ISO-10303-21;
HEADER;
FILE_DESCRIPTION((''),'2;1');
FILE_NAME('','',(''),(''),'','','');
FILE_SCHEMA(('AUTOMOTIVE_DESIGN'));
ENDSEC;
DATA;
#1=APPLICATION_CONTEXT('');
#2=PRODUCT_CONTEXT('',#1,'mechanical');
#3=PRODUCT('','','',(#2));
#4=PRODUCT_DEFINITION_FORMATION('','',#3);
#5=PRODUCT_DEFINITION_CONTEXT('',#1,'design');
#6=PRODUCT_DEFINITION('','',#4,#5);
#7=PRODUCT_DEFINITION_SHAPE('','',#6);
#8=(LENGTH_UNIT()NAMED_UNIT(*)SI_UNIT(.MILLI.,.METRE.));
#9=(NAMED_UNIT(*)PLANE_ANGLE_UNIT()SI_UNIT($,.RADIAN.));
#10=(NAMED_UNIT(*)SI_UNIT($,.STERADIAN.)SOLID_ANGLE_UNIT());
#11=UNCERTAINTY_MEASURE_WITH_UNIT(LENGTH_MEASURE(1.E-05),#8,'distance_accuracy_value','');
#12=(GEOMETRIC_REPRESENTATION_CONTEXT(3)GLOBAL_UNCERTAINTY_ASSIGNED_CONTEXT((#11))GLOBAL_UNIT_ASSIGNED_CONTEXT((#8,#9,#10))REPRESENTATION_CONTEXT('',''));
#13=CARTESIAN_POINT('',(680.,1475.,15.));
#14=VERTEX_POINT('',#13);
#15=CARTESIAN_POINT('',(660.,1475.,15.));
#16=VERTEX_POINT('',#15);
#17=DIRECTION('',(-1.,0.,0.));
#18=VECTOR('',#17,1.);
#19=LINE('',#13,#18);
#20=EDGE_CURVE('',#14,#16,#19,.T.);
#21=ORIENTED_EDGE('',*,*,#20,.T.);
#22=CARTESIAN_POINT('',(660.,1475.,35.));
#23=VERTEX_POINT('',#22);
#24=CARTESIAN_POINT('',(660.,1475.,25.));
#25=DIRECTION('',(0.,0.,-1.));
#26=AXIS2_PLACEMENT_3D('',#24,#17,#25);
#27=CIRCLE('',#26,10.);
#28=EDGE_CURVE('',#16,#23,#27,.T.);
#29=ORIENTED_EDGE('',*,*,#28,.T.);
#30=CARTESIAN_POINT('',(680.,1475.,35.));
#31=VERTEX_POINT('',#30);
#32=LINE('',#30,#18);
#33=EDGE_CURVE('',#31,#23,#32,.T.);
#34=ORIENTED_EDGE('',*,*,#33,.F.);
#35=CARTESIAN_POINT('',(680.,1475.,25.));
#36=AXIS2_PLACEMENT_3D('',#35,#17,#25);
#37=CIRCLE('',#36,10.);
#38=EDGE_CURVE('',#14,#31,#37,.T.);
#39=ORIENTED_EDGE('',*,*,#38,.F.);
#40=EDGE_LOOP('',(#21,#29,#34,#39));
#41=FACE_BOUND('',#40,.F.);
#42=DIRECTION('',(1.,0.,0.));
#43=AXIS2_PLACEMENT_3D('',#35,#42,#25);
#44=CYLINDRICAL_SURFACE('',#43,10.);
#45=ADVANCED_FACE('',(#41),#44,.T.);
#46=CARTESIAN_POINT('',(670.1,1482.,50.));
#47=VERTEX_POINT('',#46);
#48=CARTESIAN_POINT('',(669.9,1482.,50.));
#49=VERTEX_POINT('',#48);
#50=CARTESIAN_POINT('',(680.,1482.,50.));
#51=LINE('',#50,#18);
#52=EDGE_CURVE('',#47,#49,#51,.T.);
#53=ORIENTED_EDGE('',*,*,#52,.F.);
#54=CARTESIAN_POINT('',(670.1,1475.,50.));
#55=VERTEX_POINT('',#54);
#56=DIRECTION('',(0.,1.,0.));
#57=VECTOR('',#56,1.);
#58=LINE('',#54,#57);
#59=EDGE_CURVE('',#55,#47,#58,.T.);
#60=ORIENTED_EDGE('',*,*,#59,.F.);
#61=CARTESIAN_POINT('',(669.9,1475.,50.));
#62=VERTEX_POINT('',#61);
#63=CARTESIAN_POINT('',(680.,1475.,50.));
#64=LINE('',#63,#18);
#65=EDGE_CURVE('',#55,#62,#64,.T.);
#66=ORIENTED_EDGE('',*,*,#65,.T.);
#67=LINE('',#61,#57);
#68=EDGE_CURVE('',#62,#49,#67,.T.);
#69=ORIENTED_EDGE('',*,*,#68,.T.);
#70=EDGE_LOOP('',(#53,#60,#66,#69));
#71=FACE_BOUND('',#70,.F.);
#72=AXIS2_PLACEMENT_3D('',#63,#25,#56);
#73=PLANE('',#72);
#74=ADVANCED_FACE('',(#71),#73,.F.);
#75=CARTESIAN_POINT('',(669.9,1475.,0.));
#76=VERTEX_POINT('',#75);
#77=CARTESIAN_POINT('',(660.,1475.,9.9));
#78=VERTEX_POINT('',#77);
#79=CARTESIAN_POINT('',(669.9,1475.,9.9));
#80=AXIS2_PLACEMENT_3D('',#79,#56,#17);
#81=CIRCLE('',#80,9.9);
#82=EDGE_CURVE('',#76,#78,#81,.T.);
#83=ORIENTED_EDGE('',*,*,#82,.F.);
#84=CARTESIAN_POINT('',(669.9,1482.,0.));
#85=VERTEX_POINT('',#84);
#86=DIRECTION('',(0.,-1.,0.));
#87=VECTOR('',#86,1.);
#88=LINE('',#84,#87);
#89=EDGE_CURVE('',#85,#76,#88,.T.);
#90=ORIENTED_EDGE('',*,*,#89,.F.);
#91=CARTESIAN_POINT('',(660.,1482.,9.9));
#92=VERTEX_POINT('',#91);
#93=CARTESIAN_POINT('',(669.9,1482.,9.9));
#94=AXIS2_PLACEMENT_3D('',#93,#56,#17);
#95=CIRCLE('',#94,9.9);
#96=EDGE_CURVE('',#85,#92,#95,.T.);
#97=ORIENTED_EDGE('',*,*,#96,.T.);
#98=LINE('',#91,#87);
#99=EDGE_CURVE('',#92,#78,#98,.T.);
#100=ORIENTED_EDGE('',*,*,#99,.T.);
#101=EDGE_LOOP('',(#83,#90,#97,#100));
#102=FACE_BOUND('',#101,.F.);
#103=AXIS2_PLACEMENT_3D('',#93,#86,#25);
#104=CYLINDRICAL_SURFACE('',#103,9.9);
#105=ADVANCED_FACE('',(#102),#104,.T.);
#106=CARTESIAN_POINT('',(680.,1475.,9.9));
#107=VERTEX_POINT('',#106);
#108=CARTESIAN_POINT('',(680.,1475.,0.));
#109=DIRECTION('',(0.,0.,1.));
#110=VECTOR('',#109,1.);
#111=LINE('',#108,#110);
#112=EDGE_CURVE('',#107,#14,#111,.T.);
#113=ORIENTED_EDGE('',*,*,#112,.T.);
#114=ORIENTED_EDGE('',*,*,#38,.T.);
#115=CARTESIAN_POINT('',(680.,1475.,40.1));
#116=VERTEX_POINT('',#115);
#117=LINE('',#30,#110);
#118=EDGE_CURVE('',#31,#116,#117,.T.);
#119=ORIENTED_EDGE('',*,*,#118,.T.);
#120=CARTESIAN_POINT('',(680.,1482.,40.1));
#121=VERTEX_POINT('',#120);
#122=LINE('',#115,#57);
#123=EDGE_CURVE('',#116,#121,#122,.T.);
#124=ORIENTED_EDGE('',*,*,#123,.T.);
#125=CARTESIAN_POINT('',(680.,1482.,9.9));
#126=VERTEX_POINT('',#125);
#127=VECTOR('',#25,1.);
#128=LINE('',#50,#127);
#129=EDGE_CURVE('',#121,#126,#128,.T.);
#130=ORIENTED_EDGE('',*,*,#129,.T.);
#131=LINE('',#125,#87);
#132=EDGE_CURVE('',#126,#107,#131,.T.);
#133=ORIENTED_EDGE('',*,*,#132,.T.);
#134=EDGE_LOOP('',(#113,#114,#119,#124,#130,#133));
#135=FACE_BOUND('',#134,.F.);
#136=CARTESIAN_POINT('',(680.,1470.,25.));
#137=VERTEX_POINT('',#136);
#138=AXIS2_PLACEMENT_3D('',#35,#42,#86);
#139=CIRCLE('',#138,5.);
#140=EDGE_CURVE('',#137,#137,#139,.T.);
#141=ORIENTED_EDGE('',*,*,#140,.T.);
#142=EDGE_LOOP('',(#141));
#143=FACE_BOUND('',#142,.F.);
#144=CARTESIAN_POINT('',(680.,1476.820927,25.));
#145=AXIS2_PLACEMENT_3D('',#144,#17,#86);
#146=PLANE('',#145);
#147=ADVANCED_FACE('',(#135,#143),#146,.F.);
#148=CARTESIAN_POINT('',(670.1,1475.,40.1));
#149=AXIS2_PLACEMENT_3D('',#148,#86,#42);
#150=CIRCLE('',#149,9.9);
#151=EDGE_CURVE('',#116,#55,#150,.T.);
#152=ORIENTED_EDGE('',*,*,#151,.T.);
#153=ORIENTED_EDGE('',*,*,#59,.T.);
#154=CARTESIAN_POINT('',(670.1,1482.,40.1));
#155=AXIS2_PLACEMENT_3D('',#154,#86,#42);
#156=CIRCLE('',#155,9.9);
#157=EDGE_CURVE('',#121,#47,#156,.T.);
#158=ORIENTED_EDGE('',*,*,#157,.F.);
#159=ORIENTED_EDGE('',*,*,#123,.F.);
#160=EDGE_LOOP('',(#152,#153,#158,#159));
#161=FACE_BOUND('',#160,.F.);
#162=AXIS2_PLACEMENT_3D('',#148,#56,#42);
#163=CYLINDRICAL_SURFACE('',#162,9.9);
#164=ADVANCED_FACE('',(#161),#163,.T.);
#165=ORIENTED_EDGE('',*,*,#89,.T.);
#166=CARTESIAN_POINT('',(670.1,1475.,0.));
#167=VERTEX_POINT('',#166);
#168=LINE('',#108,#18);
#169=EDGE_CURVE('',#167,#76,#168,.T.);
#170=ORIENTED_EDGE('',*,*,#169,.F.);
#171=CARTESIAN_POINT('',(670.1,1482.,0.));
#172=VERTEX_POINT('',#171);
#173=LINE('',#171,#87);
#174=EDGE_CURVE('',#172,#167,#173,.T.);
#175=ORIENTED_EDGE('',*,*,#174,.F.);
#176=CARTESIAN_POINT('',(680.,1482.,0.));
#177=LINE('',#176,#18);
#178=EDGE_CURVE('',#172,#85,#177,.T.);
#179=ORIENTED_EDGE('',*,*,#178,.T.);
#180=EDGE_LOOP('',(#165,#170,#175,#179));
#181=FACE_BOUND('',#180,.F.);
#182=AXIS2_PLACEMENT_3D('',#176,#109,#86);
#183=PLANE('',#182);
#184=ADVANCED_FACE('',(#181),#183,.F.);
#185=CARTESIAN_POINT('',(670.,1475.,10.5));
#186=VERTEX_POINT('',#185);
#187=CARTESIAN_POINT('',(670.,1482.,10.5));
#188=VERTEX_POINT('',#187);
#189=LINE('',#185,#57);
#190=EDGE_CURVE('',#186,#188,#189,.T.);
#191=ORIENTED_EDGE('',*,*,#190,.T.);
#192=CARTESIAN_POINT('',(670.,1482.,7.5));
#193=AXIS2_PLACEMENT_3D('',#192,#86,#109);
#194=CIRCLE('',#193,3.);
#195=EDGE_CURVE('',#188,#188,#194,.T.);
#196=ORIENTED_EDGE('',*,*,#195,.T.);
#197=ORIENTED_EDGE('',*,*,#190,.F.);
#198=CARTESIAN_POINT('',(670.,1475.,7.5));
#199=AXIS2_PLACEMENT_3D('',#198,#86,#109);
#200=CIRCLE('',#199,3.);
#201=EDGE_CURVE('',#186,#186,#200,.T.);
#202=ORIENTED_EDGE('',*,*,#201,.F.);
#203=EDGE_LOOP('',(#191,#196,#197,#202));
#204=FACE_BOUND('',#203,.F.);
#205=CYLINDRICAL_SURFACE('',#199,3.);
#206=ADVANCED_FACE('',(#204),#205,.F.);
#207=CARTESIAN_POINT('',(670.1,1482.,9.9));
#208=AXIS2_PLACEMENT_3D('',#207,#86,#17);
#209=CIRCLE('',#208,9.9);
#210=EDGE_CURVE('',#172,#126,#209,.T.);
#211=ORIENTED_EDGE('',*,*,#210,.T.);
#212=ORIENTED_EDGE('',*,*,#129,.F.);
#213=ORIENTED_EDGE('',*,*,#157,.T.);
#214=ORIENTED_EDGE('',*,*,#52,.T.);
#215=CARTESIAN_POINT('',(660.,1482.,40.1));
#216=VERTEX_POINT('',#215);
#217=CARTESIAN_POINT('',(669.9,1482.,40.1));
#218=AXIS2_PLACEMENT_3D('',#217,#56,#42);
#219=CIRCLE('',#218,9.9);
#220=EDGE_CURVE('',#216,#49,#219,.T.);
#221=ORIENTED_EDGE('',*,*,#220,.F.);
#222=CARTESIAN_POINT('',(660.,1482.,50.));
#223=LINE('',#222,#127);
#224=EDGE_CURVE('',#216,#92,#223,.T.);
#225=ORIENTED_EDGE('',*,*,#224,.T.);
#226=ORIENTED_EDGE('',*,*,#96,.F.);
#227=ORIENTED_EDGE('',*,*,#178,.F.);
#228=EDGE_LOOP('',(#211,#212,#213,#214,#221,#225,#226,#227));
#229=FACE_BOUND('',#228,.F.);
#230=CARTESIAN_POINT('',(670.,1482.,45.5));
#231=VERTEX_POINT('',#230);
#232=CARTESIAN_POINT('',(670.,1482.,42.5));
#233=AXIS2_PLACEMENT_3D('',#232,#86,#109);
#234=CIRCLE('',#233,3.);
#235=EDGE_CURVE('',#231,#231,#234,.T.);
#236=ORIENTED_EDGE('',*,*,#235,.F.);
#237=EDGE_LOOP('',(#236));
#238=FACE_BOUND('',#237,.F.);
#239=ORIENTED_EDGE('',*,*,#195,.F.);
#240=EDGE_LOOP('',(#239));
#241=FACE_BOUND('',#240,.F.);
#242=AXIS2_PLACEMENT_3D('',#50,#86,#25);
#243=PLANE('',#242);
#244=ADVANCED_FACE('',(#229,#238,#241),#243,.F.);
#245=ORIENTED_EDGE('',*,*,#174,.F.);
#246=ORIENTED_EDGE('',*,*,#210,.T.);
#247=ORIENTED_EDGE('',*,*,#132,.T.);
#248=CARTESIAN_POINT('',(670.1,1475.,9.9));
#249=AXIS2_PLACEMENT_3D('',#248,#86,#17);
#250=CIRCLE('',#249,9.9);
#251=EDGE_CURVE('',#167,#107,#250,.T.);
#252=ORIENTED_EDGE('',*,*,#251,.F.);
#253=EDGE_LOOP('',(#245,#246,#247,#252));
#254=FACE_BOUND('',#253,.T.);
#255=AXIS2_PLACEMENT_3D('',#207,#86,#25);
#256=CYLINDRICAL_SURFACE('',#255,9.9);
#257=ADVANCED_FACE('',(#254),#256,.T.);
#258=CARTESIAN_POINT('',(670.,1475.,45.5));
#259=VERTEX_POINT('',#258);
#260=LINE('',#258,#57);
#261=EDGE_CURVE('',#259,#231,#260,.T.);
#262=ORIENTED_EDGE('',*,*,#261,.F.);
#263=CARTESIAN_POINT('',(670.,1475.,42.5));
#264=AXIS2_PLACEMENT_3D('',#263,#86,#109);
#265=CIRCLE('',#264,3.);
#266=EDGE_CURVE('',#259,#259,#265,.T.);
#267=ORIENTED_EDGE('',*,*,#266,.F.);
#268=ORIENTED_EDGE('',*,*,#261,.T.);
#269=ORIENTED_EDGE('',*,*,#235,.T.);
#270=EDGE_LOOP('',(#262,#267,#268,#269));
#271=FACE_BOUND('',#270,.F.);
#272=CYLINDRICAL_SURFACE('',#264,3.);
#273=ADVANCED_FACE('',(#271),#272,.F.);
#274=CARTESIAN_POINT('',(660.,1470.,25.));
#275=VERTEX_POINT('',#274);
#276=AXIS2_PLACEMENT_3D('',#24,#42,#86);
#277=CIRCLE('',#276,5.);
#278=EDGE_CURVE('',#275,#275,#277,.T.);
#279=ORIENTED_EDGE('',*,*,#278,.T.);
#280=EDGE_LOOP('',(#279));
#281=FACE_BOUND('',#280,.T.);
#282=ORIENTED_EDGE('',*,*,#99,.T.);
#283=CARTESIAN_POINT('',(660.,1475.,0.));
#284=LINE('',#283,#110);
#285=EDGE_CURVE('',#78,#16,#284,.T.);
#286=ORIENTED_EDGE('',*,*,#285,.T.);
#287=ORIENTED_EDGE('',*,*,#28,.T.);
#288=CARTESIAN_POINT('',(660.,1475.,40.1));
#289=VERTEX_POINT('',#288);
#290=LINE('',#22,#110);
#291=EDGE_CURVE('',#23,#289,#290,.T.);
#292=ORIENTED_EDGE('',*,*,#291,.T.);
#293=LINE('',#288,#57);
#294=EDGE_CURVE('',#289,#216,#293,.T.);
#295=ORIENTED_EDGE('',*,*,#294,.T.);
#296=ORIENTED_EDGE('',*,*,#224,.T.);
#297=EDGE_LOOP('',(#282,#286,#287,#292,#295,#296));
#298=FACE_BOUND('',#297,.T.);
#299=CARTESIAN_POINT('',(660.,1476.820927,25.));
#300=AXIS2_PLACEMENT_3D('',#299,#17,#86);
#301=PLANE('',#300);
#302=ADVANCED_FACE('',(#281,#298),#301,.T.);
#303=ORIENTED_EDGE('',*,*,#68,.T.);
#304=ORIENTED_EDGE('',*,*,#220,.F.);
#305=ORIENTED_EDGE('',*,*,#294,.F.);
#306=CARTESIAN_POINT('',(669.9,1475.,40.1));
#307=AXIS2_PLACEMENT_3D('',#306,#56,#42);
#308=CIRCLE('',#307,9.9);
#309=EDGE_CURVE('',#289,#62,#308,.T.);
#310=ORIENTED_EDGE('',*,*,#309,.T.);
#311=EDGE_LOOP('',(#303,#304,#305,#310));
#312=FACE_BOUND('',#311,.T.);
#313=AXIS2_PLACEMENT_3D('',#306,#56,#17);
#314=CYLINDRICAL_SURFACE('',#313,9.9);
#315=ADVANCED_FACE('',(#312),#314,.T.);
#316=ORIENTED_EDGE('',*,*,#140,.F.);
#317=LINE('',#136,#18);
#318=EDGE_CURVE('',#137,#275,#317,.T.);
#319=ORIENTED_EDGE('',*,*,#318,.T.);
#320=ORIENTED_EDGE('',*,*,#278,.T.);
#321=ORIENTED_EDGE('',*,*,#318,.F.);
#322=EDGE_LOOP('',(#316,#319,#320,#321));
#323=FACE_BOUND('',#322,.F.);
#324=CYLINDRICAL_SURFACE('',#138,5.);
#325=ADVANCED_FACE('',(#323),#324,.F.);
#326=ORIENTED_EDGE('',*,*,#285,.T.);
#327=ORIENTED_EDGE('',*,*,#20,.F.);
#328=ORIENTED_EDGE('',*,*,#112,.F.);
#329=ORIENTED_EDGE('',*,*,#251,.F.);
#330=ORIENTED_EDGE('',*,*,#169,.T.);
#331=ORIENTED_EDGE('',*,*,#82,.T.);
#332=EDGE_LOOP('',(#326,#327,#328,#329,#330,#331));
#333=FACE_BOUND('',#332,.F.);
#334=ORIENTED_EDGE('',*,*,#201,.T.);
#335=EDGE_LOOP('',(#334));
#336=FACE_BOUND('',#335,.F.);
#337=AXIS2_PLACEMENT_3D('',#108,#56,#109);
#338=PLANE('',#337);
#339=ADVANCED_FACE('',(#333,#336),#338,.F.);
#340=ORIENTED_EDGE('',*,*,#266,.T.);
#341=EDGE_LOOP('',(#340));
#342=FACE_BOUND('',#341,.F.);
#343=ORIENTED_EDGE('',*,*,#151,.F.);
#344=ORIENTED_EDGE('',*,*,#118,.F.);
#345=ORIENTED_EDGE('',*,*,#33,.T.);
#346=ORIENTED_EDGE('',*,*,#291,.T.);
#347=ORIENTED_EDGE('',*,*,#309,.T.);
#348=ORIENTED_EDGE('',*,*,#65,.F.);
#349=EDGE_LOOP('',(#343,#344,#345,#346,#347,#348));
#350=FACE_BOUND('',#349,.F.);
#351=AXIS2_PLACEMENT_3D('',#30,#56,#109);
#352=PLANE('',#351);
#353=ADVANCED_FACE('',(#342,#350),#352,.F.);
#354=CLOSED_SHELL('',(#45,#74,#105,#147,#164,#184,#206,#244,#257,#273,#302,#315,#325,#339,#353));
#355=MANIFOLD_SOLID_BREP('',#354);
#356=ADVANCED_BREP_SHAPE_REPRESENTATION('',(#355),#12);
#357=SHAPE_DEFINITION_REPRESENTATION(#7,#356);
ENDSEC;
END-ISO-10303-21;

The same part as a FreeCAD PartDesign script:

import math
import FreeCAD as App
import Part
import Sketcher
from FreeCAD import Vector


def edges_at(feature, points):
    """Names of the edges that pass closest to the given points."""
    edges = feature.Shape.Edges
    near = lambda p: min(range(len(edges)), key=lambda i: edges[i].distToShape(Part.Vertex(*p))[0])
    return sorted({f"Edge{near(p) + 1}" for p in points})

doc = App.newDocument("Part")
params = doc.addObject("Spreadsheet::Sheet", "Params")
for row, (alias, value) in enumerate([
    ("sketch1_radius", "10 mm"),
    ("sketch1_width", "7 mm"),
    ("sketch1_height", "15 mm"),
    ("pad1_length", "20 mm"),
    ("sketch2_diameter", "10 mm"),
    ("fillet_radius", "9.9 mm"),
    ("sketch3_diameter", "6 mm"),
], start=1):
    params.set(f"A{row}", alias)
    params.set(f"B{row}", "=" + value)
    params.setAlias(f"B{row}", alias)

body = doc.addObject("PartDesign::Body", "Body")

sketch1 = doc.addObject("Sketcher::SketchObject", "Sketch")
body.addObject(sketch1)
sketch1.AttachmentSupport = (doc.XY_Plane, [""])
sketch1.MapMode = "FlatFace"
sketch1.addGeometry([
    Part.LineSegment(Vector(18, 0, 0), Vector(25, 0, 0)),
    Part.LineSegment(Vector(25, 0, 0), Vector(25, 15, 0)),
    Part.ArcOfCircle(Part.Circle(Vector(25, 25, 0), Vector(0, 0, 1), 10), math.radians(-90), math.radians(90)),
    Part.LineSegment(Vector(25, 35, 0), Vector(25, 50, 0)),
    Part.LineSegment(Vector(25, 50, 0), Vector(18, 50, 0)),
    Part.LineSegment(Vector(18, 50, 0), Vector(18, 0, 0)),
], False)
sketch1.addConstraint([
    Sketcher.Constraint("Coincident", 0, 2, 1, 1),
    Sketcher.Constraint("Coincident", 1, 2, 2, 1),
    Sketcher.Constraint("Coincident", 2, 2, 3, 1),
    Sketcher.Constraint("Coincident", 3, 2, 4, 1),
    Sketcher.Constraint("Coincident", 4, 2, 5, 1),
    Sketcher.Constraint("Coincident", 5, 2, 0, 1),
    Sketcher.Constraint("Horizontal", 0),
    Sketcher.Constraint("Vertical", 1),
    Sketcher.Constraint("Vertical", 3),
    Sketcher.Constraint("Horizontal", 4),
    Sketcher.Constraint("Vertical", 5),
    Sketcher.Constraint("PointOnObject", 0, 2, -1),
    Sketcher.Constraint("Vertical", 2, 3, 0, 2),
    Sketcher.Constraint("Vertical", 1, 2, 2, 2),
    Sketcher.Constraint("Equal", 1, 3),
    Sketcher.Constraint("Radius", 2, 10.0),
    Sketcher.Constraint("DistanceX", 0, 1, 0, 2, 7.0),
    Sketcher.Constraint("DistanceY", 1, 1, 1, 2, 15.0),
    Sketcher.Constraint("DistanceX", -1, 1, 2, 3, 25.0),
])
sketch1.setExpression("Constraints[15]", "Params.sketch1_radius")
sketch1.setExpression("Constraints[16]", "Params.sketch1_width")
sketch1.setExpression("Constraints[17]", "Params.sketch1_height")
pad1 = doc.addObject("PartDesign::Pad", "Pad")
body.addObject(pad1)
pad1.Profile = sketch1
pad1.setExpression("Length", "Params.pad1_length")

sketch2 = doc.addObject("Sketcher::SketchObject", "Sketch001")
body.addObject(sketch2)
sketch2.AttachmentSupport = (doc.XY_Plane, [""])
sketch2.MapMode = "FlatFace"
sketch2.addGeometry(Part.Circle(Vector(25, 25, 0), Vector(0, 0, 1), 5), False)
sketch2.addConstraint([
    Sketcher.Constraint("Diameter", 0, 10.0),
    Sketcher.Constraint("DistanceX", -1, 1, 0, 3, 25.0),
    Sketcher.Constraint("DistanceY", -1, 1, 0, 3, 25.0),
])
sketch2.setExpression("Constraints[0]", "Params.sketch2_diameter")
pocket1 = doc.addObject("PartDesign::Pocket", "Pocket")
body.addObject(pocket1)
pocket1.Profile = sketch2
pocket1.Type = "ThroughAll"
pocket1.Reversed = True
doc.recompute()

fillet = doc.addObject("PartDesign::Fillet", "Fillet")
body.addObject(fillet)
fillet.Base = (pocket1, edges_at(pocket1, [
    (21.5, 0, 0),
    (21.5, 50, 0),
    (21.5, 50, 20),
    (21.5, 0, 20),
]))
fillet.setExpression("Radius", "Params.fillet_radius")

sketch3 = doc.addObject("Sketcher::SketchObject", "Sketch002")
body.addObject(sketch3)
sketch3.AttachmentSupport = (doc.YZ_Plane, [""])
sketch3.MapMode = "FlatFace"
sketch3.AttachmentOffset = App.Placement(Vector(0, 0, 25), App.Rotation())
sketch3.addGeometry([
    Part.Circle(Vector(7.5, 10, 0), Vector(0, 0, 1), 3),
    Part.Circle(Vector(42.5, 10, 0), Vector(0, 0, 1), 3),
], False)
sketch3.addConstraint([
    Sketcher.Constraint("Equal", 0, 1),
    Sketcher.Constraint("Horizontal", 0, 3, 1, 3),
    Sketcher.Constraint("Diameter", 0, 6.0),
    Sketcher.Constraint("DistanceY", -1, 1, 0, 3, 10.0),
    Sketcher.Constraint("DistanceX", 0, 3, 1, 3, 35.0),
    Sketcher.Constraint("DistanceX", -1, 1, 0, 3, 7.5),
])
sketch3.setExpression("Constraints[2]", "Params.sketch3_diameter")
pocket2 = doc.addObject("PartDesign::Pocket", "Pocket001")
body.addObject(pocket2)
pocket2.Profile = sketch3
pocket2.Type = "ThroughAll"
body2 = doc.addObject("PartDesign::Body", "Body001")
doc.recompute()

body.Placement = App.Placement(Vector(0, 0, 0), App.Rotation(Vector(1, 0, 0), 90))
boolean = doc.addObject("PartDesign::Boolean", "Boolean")
body2.addObject(boolean)
boolean.Type = "Fuse"
boolean.addObjects([body])
body3 = doc.addObject("PartDesign::Body", "Body002")
doc.recompute()

body2.Placement = App.Placement(Vector(120.75, 1500, 0), App.Rotation(Vector(0, 0, 1), 270))
boolean2 = doc.addObject("PartDesign::Boolean", "Boolean001")
body3.addObject(boolean2)
boolean2.Type = "Fuse"
boolean2.addObjects([body2])
body4 = doc.addObject("PartDesign::Body", "Body003")
doc.recompute()

body3.Placement = App.Placement(Vector(559.25, 0, 0), App.Rotation(Vector(0, 0, 1), 0))
boolean3 = doc.addObject("PartDesign::Boolean", "Boolean002")
body4.addObject(boolean3)
boolean3.Type = "Fuse"
boolean3.addObjects([body3])

doc.recompute()
